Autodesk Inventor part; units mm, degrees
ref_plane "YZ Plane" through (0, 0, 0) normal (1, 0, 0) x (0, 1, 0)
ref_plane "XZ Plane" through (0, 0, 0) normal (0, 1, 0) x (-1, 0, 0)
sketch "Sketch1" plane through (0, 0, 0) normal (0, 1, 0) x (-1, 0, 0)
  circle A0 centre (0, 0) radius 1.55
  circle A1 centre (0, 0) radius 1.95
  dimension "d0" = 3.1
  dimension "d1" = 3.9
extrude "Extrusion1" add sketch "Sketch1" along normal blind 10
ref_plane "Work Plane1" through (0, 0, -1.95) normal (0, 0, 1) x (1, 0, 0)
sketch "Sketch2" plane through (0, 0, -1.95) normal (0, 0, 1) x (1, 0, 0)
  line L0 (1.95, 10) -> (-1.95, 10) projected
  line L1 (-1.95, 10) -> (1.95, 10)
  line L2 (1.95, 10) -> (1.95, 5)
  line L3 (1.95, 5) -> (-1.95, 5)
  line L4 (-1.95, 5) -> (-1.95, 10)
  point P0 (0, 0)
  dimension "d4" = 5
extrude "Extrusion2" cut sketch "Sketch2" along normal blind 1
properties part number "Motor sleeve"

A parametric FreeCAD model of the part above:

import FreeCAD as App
import Part
import Sketcher
from FreeCAD import Vector


def add_polygon(sketch, points):
    """Adds a closed chain of lines whose ends are joined by coincident constraints."""
    first, n = sketch.GeometryCount, len(points)
    for a, b in zip(points, points[1:] + points[:1]):
        sketch.addGeometry(Part.LineSegment(App.Vector(*a, 0), App.Vector(*b, 0)), False)
    for i in range(n):
        sketch.addConstraint(Sketcher.Constraint("Coincident", first + i, 2, first + (i + 1) % n, 1))

doc = App.newDocument("Part")
body = doc.addObject("PartDesign::Body", "Body")

sketch1 = body.newObject("Sketcher::SketchObject", "Sketch")
sketch1.AttachmentSupport = (doc.getObject("XZ_Plane"), [""])
sketch1.MapMode = "FlatFace"
sketch1.addGeometry([
    Part.Circle(Vector(0, 0, 0), Vector(0, 0, 1), 1.95),
    Part.Circle(Vector(0, 0, 0), Vector(0, 0, 1), 1.55),
], False)
sketch1.addConstraint([
    Sketcher.Constraint("Coincident", 0, 3, -1, 1),
    Sketcher.Constraint("Coincident", 1, 3, -1, 1),
    Sketcher.Constraint("Diameter", 0, 3.9),
    Sketcher.Constraint("Diameter", 1, 3.1),
])
pad1 = body.newObject("PartDesign::Pad", "Pad")
pad1.Profile = sketch1
pad1.Length = 10
pad1.Reversed = True

sketch2 = body.newObject("Sketcher::SketchObject", "Sketch001")
sketch2.AttachmentSupport = (doc.getObject("XY_Plane"), [""])
sketch2.MapMode = "FlatFace"
sketch2.AttachmentOffset = App.Placement(Vector(0, 0, -1.95), App.Rotation())
add_polygon(sketch2, [(1.95, 5), (1.95, 10), (-1.95, 10), (-1.95, 5)])
sketch2.addConstraint([
    Sketcher.Constraint("Vertical", 0),
    Sketcher.Constraint("Horizontal", 1),
    Sketcher.Constraint("Vertical", 2),
    Sketcher.Constraint("Horizontal", 3),
    Sketcher.Constraint("DistanceY", 0, 1, 0, 2, 5.0),
    Sketcher.Constraint("DistanceY", -1, 1, 2, 2, 5.0),
    Sketcher.Constraint("DistanceX", 1, 2, 1, 1, 3.9),
    Sketcher.Constraint("DistanceX", -1, 1, 0, 2, 1.95),
])
pocket1 = body.newObject("PartDesign::Pocket", "Pocket")
pocket1.Profile = sketch2
pocket1.Length = 1
pocket1.Reversed = True

doc.recompute()
